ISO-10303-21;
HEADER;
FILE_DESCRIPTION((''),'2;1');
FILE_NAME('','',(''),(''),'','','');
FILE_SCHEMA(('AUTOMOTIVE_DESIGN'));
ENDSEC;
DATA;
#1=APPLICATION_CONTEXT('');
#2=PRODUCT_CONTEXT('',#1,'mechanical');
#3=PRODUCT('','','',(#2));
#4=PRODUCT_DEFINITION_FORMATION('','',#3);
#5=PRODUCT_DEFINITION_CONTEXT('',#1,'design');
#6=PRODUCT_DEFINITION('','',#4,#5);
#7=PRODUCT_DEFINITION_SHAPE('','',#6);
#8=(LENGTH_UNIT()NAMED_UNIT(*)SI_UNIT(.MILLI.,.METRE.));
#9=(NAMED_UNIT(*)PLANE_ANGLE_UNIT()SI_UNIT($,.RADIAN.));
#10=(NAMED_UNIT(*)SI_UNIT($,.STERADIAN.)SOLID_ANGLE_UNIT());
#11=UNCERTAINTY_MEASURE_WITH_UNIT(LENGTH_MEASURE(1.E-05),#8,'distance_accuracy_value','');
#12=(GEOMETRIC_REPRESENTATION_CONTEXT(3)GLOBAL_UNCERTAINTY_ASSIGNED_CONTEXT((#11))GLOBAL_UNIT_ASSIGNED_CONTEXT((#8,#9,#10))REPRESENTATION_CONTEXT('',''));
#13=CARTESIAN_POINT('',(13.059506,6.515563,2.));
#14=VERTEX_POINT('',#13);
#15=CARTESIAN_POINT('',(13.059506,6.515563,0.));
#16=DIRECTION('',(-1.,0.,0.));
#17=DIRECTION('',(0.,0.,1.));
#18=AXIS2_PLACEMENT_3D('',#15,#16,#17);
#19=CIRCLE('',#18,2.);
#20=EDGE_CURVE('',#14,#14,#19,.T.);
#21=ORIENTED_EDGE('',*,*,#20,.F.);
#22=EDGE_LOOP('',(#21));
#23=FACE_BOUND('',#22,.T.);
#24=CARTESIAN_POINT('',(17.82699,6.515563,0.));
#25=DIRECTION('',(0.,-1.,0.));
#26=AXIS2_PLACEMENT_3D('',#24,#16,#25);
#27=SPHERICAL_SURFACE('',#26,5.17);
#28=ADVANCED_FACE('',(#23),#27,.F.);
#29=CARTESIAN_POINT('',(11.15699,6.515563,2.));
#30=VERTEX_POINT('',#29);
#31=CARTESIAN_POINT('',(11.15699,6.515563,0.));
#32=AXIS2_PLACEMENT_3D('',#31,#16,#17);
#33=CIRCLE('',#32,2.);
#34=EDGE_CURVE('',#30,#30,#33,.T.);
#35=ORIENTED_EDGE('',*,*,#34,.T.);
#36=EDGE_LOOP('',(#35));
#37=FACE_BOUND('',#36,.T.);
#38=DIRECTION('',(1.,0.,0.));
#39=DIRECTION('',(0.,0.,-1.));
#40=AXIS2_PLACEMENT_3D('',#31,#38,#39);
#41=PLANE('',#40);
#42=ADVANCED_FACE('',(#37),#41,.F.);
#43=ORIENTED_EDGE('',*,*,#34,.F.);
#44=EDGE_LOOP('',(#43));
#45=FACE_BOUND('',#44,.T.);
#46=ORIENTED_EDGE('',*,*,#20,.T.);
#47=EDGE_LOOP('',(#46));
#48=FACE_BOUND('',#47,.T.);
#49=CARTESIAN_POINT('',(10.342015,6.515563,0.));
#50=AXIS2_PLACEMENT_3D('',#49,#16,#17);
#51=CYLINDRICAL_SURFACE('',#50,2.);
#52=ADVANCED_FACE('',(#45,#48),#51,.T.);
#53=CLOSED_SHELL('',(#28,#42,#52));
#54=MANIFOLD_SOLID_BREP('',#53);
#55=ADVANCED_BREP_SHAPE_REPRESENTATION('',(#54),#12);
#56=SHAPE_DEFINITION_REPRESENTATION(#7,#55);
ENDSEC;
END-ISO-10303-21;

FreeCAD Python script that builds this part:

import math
import FreeCAD as App
import Part
import Sketcher

doc = App.newDocument("Part")
body = doc.addObject("PartDesign::Body", "Body")

# Sketch on XY plane
sketch1 = body.newObject("Sketcher::SketchObject", "Sketch")
sketch1.AttachmentSupport = (doc.getObject("XY_Plane"), [""])
sketch1.MapMode = "FlatFace"
sketch1.addGeometry([
    Part.LineSegment(App.Vector(11.2, 8.5, 0), App.Vector(11.2, 6.5, 0)),
    Part.LineSegment(App.Vector(11.2, 6.5, 0), App.Vector(12.7, 6.5, 0)),
    Part.ArcOfCircle(Part.Circle(App.Vector(17.8, 6.5, 0), App.Vector(0, 0, 1), 5.2), math.radians(157), math.radians(180)),
    Part.LineSegment(App.Vector(13.1, 8.5, 0), App.Vector(11.2, 8.5, 0)),
], False)
sketch1.addGeometry(Part.LineSegment(App.Vector(11.2, 6.5, 0), App.Vector(17.8, 6.5, 0)), True)  # axis
sketch1.addConstraint([
    Sketcher.Constraint("Coincident", 0, 2, 1, 1),
    Sketcher.Constraint("Coincident", 1, 2, 2, 2),
    Sketcher.Constraint("Coincident", 2, 1, 3, 1),
    Sketcher.Constraint("Coincident", 3, 2, 0, 1),
    Sketcher.Constraint("Vertical", 0),
    Sketcher.Constraint("Horizontal", 1),
    Sketcher.Constraint("Horizontal", 3),
    Sketcher.Constraint("Horizontal", 4),
    Sketcher.Constraint("Coincident", 4, 1, 0, 2),
    Sketcher.Constraint("Coincident", 4, 2, 2, 3),
    Sketcher.Constraint("DistanceY", 0, 2, 0, 1, 2.0),
    Sketcher.Constraint("Radius", 2, 5.17),
    Sketcher.Constraint("DistanceX", 1, 1, 1, 2, 1.5),
    Sketcher.Constraint("DistanceX", -1, 1, 2, 3, 17.82699),
    Sketcher.Constraint("DistanceY", -1, 1, 2, 3, 6.515563),
])
revolution = body.newObject("PartDesign::Revolution", "Revolution")
revolution.Profile = sketch1
revolution.ReferenceAxis = (sketch1, ["Axis0"])
revolution.Angle = 360

doc.recompute()
